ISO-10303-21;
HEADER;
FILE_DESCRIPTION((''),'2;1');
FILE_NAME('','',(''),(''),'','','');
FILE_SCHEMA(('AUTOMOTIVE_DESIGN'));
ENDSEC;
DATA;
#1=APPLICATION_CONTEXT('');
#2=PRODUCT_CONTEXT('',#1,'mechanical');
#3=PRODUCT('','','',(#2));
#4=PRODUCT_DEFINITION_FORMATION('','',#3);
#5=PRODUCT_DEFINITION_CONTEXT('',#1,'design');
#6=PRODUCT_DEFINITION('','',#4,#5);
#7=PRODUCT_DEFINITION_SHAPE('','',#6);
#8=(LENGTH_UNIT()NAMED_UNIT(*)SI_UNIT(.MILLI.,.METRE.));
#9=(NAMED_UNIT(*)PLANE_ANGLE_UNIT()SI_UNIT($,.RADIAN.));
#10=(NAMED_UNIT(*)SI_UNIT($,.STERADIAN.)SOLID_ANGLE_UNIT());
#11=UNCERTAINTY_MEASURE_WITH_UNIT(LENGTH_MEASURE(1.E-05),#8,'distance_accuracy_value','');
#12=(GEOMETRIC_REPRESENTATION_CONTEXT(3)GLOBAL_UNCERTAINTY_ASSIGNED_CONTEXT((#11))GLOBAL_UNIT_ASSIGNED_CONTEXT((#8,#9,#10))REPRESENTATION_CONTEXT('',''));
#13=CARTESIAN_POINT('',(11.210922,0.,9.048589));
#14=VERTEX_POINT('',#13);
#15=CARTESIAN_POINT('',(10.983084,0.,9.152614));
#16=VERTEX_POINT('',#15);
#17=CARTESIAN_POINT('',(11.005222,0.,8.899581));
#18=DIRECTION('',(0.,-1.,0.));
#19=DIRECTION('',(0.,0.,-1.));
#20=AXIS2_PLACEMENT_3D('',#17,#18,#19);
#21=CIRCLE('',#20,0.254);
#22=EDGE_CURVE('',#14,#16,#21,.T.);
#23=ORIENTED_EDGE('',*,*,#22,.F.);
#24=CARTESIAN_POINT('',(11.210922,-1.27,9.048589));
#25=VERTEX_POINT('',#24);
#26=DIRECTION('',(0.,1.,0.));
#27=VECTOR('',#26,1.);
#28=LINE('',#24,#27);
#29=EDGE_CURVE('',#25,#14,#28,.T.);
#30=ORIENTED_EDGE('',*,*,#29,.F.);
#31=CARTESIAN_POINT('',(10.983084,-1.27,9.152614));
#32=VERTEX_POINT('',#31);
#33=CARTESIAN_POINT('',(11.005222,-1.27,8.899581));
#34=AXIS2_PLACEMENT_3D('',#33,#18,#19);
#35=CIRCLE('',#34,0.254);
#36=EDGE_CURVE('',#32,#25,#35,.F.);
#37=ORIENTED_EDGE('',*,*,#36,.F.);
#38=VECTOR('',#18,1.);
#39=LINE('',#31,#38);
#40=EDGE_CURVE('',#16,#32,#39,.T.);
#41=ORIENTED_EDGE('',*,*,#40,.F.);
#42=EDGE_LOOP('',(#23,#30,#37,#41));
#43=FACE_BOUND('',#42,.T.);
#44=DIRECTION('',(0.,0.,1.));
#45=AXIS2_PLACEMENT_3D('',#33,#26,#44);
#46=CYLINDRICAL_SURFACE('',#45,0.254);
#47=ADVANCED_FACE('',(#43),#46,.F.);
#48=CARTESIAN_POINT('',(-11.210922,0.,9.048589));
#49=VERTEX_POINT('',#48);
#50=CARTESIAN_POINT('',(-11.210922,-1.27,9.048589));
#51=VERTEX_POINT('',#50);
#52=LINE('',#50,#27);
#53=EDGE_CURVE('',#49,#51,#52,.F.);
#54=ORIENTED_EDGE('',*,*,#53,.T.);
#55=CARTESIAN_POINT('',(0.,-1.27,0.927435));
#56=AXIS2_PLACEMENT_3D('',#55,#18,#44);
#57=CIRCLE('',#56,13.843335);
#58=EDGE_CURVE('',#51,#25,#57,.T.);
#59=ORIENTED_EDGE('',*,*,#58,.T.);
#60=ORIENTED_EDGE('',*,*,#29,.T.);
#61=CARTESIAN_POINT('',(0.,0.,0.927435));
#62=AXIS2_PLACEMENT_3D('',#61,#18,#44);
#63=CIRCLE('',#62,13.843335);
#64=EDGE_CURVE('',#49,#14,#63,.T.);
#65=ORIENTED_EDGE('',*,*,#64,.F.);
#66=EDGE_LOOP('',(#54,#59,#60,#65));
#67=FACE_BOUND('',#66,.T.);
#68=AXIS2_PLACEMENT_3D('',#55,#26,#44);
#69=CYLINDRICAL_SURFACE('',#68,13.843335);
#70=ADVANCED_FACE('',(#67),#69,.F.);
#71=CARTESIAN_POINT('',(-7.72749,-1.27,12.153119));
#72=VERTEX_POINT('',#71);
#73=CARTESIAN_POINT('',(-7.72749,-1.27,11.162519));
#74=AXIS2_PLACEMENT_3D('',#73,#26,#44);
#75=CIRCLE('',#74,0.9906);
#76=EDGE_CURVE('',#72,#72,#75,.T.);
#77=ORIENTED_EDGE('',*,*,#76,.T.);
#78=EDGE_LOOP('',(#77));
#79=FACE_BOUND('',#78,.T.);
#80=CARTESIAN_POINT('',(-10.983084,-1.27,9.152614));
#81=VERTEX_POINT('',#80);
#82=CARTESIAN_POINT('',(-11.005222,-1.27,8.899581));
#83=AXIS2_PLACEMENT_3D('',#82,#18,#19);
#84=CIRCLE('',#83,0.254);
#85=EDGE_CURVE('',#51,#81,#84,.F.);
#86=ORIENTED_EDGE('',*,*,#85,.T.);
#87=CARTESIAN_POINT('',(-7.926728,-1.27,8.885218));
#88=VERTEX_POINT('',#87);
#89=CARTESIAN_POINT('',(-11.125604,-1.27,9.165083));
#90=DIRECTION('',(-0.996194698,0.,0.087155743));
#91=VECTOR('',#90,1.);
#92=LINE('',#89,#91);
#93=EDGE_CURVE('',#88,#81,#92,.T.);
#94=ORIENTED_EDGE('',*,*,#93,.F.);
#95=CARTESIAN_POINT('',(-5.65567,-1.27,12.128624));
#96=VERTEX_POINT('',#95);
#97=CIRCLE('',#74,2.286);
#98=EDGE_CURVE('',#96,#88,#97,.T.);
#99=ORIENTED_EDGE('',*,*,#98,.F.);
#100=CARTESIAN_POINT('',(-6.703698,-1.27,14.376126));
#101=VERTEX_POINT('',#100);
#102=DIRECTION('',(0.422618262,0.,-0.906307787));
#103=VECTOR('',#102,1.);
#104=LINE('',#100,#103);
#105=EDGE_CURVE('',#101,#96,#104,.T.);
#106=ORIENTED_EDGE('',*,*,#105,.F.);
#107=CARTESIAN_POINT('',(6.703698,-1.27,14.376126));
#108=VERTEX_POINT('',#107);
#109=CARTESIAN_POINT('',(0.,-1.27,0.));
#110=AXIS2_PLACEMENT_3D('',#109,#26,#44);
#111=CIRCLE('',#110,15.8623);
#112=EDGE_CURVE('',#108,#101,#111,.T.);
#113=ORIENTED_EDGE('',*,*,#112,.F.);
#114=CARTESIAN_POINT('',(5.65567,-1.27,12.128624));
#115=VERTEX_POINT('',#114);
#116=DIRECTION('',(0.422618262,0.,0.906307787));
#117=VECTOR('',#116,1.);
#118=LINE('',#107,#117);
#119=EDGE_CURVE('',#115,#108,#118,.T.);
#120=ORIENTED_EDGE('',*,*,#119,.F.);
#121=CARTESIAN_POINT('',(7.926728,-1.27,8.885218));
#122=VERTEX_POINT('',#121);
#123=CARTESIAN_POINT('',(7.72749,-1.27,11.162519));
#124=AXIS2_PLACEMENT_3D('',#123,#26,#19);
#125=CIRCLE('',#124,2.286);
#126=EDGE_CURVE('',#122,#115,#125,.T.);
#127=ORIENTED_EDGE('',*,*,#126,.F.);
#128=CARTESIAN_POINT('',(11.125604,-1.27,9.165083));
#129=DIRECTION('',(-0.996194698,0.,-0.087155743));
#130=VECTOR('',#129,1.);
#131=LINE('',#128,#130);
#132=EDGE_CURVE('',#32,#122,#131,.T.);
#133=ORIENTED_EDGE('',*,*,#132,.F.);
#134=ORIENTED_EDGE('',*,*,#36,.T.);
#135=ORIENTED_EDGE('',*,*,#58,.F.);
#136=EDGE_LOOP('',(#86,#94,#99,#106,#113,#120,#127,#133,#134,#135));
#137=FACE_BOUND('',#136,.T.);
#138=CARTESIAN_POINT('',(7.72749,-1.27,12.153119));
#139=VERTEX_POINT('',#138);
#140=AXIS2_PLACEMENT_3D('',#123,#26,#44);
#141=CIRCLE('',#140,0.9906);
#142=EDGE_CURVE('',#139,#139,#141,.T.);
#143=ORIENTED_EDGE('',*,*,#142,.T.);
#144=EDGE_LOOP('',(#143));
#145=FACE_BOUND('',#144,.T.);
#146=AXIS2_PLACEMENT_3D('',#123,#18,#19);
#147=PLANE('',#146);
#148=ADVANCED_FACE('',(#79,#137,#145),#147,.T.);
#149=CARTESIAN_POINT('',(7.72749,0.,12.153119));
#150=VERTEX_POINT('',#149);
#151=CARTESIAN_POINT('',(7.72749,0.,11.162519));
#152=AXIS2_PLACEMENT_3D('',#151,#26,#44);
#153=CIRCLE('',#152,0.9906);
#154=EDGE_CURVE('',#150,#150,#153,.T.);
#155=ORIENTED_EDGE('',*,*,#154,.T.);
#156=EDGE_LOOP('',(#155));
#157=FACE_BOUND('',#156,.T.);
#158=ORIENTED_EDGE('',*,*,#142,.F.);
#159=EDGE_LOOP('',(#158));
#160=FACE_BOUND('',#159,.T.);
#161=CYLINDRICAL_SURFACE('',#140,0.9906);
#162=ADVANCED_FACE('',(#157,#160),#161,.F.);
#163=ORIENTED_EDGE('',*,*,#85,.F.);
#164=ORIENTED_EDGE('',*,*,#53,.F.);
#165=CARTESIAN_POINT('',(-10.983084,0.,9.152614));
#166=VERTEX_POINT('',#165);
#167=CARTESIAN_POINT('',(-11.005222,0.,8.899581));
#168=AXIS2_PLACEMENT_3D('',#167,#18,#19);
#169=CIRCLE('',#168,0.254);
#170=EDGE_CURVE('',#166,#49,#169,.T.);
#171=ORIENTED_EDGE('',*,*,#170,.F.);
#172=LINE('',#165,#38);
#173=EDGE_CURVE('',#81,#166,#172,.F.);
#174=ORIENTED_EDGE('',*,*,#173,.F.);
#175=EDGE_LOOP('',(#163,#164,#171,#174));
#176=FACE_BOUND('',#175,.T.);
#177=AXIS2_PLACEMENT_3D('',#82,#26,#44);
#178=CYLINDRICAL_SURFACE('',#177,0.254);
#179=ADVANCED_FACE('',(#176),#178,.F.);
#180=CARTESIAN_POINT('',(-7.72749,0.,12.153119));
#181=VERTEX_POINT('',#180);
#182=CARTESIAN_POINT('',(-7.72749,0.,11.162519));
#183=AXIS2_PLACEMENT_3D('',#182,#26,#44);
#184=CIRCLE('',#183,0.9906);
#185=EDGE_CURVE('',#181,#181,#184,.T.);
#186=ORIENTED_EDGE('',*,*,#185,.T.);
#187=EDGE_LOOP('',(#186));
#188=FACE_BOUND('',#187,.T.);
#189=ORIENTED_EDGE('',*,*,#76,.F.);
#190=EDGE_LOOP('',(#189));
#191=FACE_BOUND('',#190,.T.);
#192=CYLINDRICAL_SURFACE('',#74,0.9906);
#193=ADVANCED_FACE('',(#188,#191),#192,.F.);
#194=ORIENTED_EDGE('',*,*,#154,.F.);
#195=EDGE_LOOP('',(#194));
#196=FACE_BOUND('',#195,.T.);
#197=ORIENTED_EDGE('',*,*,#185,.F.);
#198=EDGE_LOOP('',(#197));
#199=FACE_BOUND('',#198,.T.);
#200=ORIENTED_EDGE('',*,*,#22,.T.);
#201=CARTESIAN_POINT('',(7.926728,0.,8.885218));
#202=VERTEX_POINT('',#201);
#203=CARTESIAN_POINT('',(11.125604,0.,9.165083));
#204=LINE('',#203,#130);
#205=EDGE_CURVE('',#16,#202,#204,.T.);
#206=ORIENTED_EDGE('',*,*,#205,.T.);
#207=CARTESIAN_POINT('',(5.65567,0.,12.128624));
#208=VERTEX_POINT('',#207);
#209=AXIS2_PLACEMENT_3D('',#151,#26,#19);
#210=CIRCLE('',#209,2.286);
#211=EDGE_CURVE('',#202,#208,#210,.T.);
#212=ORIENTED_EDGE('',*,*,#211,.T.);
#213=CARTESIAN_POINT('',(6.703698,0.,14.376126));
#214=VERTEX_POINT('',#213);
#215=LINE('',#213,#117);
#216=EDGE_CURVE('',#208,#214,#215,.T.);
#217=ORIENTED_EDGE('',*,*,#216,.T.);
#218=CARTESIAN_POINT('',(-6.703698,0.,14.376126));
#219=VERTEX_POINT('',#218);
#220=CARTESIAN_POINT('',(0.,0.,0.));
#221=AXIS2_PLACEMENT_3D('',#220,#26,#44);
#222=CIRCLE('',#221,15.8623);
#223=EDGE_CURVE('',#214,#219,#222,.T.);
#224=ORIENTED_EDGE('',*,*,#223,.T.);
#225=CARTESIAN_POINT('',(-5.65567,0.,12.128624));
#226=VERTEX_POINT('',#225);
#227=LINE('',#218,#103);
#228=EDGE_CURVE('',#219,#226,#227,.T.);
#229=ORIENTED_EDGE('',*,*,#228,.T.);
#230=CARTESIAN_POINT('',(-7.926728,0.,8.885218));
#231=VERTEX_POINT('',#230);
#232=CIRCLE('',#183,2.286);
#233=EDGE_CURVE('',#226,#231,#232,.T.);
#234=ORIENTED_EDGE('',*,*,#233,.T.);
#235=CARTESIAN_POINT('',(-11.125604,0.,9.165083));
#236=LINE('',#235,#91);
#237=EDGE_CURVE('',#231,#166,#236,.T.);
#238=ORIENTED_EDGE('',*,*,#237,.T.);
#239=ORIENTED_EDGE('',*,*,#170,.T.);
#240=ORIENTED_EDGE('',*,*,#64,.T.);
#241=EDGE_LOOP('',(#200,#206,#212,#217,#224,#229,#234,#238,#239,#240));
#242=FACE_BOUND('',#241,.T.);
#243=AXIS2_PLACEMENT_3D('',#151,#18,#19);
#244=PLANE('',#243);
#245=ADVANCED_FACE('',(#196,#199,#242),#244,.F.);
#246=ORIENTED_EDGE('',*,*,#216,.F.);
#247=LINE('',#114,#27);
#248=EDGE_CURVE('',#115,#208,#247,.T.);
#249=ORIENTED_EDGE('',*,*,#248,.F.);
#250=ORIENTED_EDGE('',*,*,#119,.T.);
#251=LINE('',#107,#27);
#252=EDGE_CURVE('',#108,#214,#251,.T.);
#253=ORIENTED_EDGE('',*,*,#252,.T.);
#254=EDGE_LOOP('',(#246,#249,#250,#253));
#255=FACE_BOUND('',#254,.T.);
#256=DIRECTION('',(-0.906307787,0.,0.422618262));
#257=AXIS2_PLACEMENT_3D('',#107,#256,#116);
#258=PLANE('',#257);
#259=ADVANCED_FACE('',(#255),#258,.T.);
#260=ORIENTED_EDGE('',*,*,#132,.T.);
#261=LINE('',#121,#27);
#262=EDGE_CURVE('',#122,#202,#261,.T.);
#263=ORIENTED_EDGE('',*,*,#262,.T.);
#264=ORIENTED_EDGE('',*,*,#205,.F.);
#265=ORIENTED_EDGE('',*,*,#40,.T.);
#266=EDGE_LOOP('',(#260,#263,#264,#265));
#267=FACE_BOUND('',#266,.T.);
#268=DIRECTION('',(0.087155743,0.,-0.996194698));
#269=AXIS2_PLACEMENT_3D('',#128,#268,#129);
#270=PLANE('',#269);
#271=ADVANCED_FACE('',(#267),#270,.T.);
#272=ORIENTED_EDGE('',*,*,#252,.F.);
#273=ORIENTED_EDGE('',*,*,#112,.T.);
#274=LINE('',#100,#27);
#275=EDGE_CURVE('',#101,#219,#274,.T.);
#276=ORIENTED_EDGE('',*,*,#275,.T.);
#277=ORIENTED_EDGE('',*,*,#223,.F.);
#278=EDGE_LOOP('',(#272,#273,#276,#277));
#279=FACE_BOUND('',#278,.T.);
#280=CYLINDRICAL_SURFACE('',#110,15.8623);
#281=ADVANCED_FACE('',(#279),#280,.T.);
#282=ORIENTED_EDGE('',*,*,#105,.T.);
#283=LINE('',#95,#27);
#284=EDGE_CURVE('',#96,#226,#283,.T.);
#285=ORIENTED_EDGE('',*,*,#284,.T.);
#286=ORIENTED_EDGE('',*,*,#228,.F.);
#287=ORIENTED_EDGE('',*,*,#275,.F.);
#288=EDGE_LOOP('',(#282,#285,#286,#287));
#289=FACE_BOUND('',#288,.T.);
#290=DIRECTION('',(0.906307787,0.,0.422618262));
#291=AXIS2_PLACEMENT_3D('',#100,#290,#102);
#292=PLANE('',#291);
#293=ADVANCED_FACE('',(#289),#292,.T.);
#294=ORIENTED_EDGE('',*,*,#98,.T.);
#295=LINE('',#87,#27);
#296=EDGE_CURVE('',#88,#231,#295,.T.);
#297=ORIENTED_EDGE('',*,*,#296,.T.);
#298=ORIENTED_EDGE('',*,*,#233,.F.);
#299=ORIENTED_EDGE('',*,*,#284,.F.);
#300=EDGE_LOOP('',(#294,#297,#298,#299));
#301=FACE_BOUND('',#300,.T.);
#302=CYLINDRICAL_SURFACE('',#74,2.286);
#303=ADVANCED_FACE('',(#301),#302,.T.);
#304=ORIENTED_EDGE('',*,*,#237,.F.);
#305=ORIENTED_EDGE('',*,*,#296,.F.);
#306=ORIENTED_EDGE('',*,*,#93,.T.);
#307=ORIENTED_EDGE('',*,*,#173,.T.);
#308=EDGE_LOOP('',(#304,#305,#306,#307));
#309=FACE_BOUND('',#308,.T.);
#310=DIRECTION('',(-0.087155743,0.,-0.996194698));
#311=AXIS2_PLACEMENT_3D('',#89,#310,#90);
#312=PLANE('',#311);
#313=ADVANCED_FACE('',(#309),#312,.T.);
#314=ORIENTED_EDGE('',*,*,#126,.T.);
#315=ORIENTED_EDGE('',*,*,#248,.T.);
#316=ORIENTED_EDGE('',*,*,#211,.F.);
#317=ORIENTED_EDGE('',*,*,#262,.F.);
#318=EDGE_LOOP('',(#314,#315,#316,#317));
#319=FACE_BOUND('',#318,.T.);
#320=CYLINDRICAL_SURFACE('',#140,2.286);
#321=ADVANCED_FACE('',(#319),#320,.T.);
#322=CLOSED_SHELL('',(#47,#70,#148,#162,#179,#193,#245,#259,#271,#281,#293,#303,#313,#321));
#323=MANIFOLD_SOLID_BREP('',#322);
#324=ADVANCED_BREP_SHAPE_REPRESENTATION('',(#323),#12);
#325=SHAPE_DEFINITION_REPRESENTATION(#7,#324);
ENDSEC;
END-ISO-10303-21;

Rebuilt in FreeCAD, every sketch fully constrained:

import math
import FreeCAD as App
import Part
import Sketcher

V = App.Vector
Q = App.Units.Quantity


def edges_at(feature, points):
    """Names of the edges that pass closest to the given points."""
    edges = feature.Shape.Edges
    near = lambda p: min(range(len(edges)), key=lambda i: edges[i].distToShape(Part.Vertex(*p))[0])
    return sorted({f"Edge{near(p) + 1}" for p in points})

doc = App.newDocument("Part")
body = doc.addObject("PartDesign::Body", "Body")

# Sketch on XZ plane
sketch1 = body.newObject("Sketcher::SketchObject", "Sketch")
sketch1.AttachmentSupport = (doc.getObject("XZ_Plane"), [""])
sketch1.MapMode = "FlatFace"
sketch1.addGeometry([
    Part.LineSegment(V(5.65567, 12.128624, 0), V(6.703698, 14.376126, 0)),  # 0
    Part.ArcOfCircle(Part.Circle(V(0, 0, 0), V(0, 0, 1), 15.8623), math.radians(115), math.radians(425)),  # 1
    Part.LineSegment(V(-6.703698, 14.376126, 0), V(-5.65567, 12.128624, 0)),  # 2
    Part.ArcOfCircle(Part.Circle(V(-7.72749, 11.162519, 0), V(0, 0, 1), 2.286), math.radians(-95), math.radians(25)),  # 3
    Part.LineSegment(V(-7.926728, 8.885218, 0), V(-11.125604, 9.165083, 0)),  # 4
    Part.ArcOfCircle(Part.Circle(V(0, 0.927435, 0), V(0, 0, 1), 13.843335), math.radians(143.482918), math.radians(396.517082)),  # 5
    Part.LineSegment(V(11.125604, 9.165083, 0), V(7.926728, 8.885218, 0)),  # 6
    Part.ArcOfCircle(Part.Circle(V(7.72749, 11.162519, 0), V(0, 0, 1), 2.286), math.radians(155), math.radians(275)),  # 7
    Part.Circle(V(7.72749, 11.162519, 0), V(0, 0, 1), 0.9906),  # 8
    Part.Circle(V(-7.72749, 11.162519, 0), V(0, 0, 1), 0.9906),  # 9
], False)
sketch1.addConstraint([
    Sketcher.Constraint("Coincident", 0, 2, 1, 2),
    Sketcher.Constraint("Coincident", 1, 1, 2, 1),
    Sketcher.Constraint("Tangent", 2, 2, 3, 2),
    Sketcher.Constraint("Tangent", 3, 1, 4, 1),
    Sketcher.Constraint("Coincident", 4, 2, 5, 1),
    Sketcher.Constraint("Coincident", 5, 2, 6, 1),
    Sketcher.Constraint("Tangent", 6, 2, 7, 2),
    Sketcher.Constraint("Tangent", 7, 1, 0, 1),
    Sketcher.Constraint("Coincident", 1, 3, -1, 1),
    Sketcher.Constraint("Coincident", 8, 3, 7, 3),
    Sketcher.Constraint("Coincident", 9, 3, 3, 3),
    Sketcher.Constraint("Equal", 3, 7),
    Sketcher.Constraint("Equal", 8, 9),
    Sketcher.Constraint("Symmetric", 3, 3, 7, 3, -2),
    Sketcher.Constraint("Symmetric", 4, 2, 5, 2, -2),
    Sketcher.Constraint("Horizontal", 0, 2, 1, 1),
    Sketcher.Constraint("Radius", 3, Q("0.09 in")),
    Sketcher.Constraint("Diameter", 8, Q("0.078 in")),
    Sketcher.Constraint("Angle", 0, Q("65 deg")),
    Sketcher.Constraint("Angle", 4, Q("175 deg")),
    Sketcher.Constraint("Radius", 1, Q("0.6245 in")),
    Sketcher.Constraint("Radius", 5, Q("13.843335 mm")),
    Sketcher.Constraint("DistanceX", 3, 3, -1, 1, Q("7.72749 mm")),
    Sketcher.Constraint("DistanceY", -1, 1, 3, 3, Q("11.162519 mm")),
    Sketcher.Constraint("DistanceY", 5, 3, 0, 2, Q("13.448691 mm")),
])
pad1 = body.newObject("PartDesign::Pad", "Pad")
pad1.Profile = sketch1
pad1.Length = Q("0.05 in")
doc.recompute()

fillet = body.newObject("PartDesign::Fillet", "Fillet")
fillet.Base = (pad1, edges_at(pad1, [(11.126, -0.635, 9.165), (-11.126, -0.635, 9.165)]))
fillet.Radius = Q("0.01 in")

doc.recompute()
